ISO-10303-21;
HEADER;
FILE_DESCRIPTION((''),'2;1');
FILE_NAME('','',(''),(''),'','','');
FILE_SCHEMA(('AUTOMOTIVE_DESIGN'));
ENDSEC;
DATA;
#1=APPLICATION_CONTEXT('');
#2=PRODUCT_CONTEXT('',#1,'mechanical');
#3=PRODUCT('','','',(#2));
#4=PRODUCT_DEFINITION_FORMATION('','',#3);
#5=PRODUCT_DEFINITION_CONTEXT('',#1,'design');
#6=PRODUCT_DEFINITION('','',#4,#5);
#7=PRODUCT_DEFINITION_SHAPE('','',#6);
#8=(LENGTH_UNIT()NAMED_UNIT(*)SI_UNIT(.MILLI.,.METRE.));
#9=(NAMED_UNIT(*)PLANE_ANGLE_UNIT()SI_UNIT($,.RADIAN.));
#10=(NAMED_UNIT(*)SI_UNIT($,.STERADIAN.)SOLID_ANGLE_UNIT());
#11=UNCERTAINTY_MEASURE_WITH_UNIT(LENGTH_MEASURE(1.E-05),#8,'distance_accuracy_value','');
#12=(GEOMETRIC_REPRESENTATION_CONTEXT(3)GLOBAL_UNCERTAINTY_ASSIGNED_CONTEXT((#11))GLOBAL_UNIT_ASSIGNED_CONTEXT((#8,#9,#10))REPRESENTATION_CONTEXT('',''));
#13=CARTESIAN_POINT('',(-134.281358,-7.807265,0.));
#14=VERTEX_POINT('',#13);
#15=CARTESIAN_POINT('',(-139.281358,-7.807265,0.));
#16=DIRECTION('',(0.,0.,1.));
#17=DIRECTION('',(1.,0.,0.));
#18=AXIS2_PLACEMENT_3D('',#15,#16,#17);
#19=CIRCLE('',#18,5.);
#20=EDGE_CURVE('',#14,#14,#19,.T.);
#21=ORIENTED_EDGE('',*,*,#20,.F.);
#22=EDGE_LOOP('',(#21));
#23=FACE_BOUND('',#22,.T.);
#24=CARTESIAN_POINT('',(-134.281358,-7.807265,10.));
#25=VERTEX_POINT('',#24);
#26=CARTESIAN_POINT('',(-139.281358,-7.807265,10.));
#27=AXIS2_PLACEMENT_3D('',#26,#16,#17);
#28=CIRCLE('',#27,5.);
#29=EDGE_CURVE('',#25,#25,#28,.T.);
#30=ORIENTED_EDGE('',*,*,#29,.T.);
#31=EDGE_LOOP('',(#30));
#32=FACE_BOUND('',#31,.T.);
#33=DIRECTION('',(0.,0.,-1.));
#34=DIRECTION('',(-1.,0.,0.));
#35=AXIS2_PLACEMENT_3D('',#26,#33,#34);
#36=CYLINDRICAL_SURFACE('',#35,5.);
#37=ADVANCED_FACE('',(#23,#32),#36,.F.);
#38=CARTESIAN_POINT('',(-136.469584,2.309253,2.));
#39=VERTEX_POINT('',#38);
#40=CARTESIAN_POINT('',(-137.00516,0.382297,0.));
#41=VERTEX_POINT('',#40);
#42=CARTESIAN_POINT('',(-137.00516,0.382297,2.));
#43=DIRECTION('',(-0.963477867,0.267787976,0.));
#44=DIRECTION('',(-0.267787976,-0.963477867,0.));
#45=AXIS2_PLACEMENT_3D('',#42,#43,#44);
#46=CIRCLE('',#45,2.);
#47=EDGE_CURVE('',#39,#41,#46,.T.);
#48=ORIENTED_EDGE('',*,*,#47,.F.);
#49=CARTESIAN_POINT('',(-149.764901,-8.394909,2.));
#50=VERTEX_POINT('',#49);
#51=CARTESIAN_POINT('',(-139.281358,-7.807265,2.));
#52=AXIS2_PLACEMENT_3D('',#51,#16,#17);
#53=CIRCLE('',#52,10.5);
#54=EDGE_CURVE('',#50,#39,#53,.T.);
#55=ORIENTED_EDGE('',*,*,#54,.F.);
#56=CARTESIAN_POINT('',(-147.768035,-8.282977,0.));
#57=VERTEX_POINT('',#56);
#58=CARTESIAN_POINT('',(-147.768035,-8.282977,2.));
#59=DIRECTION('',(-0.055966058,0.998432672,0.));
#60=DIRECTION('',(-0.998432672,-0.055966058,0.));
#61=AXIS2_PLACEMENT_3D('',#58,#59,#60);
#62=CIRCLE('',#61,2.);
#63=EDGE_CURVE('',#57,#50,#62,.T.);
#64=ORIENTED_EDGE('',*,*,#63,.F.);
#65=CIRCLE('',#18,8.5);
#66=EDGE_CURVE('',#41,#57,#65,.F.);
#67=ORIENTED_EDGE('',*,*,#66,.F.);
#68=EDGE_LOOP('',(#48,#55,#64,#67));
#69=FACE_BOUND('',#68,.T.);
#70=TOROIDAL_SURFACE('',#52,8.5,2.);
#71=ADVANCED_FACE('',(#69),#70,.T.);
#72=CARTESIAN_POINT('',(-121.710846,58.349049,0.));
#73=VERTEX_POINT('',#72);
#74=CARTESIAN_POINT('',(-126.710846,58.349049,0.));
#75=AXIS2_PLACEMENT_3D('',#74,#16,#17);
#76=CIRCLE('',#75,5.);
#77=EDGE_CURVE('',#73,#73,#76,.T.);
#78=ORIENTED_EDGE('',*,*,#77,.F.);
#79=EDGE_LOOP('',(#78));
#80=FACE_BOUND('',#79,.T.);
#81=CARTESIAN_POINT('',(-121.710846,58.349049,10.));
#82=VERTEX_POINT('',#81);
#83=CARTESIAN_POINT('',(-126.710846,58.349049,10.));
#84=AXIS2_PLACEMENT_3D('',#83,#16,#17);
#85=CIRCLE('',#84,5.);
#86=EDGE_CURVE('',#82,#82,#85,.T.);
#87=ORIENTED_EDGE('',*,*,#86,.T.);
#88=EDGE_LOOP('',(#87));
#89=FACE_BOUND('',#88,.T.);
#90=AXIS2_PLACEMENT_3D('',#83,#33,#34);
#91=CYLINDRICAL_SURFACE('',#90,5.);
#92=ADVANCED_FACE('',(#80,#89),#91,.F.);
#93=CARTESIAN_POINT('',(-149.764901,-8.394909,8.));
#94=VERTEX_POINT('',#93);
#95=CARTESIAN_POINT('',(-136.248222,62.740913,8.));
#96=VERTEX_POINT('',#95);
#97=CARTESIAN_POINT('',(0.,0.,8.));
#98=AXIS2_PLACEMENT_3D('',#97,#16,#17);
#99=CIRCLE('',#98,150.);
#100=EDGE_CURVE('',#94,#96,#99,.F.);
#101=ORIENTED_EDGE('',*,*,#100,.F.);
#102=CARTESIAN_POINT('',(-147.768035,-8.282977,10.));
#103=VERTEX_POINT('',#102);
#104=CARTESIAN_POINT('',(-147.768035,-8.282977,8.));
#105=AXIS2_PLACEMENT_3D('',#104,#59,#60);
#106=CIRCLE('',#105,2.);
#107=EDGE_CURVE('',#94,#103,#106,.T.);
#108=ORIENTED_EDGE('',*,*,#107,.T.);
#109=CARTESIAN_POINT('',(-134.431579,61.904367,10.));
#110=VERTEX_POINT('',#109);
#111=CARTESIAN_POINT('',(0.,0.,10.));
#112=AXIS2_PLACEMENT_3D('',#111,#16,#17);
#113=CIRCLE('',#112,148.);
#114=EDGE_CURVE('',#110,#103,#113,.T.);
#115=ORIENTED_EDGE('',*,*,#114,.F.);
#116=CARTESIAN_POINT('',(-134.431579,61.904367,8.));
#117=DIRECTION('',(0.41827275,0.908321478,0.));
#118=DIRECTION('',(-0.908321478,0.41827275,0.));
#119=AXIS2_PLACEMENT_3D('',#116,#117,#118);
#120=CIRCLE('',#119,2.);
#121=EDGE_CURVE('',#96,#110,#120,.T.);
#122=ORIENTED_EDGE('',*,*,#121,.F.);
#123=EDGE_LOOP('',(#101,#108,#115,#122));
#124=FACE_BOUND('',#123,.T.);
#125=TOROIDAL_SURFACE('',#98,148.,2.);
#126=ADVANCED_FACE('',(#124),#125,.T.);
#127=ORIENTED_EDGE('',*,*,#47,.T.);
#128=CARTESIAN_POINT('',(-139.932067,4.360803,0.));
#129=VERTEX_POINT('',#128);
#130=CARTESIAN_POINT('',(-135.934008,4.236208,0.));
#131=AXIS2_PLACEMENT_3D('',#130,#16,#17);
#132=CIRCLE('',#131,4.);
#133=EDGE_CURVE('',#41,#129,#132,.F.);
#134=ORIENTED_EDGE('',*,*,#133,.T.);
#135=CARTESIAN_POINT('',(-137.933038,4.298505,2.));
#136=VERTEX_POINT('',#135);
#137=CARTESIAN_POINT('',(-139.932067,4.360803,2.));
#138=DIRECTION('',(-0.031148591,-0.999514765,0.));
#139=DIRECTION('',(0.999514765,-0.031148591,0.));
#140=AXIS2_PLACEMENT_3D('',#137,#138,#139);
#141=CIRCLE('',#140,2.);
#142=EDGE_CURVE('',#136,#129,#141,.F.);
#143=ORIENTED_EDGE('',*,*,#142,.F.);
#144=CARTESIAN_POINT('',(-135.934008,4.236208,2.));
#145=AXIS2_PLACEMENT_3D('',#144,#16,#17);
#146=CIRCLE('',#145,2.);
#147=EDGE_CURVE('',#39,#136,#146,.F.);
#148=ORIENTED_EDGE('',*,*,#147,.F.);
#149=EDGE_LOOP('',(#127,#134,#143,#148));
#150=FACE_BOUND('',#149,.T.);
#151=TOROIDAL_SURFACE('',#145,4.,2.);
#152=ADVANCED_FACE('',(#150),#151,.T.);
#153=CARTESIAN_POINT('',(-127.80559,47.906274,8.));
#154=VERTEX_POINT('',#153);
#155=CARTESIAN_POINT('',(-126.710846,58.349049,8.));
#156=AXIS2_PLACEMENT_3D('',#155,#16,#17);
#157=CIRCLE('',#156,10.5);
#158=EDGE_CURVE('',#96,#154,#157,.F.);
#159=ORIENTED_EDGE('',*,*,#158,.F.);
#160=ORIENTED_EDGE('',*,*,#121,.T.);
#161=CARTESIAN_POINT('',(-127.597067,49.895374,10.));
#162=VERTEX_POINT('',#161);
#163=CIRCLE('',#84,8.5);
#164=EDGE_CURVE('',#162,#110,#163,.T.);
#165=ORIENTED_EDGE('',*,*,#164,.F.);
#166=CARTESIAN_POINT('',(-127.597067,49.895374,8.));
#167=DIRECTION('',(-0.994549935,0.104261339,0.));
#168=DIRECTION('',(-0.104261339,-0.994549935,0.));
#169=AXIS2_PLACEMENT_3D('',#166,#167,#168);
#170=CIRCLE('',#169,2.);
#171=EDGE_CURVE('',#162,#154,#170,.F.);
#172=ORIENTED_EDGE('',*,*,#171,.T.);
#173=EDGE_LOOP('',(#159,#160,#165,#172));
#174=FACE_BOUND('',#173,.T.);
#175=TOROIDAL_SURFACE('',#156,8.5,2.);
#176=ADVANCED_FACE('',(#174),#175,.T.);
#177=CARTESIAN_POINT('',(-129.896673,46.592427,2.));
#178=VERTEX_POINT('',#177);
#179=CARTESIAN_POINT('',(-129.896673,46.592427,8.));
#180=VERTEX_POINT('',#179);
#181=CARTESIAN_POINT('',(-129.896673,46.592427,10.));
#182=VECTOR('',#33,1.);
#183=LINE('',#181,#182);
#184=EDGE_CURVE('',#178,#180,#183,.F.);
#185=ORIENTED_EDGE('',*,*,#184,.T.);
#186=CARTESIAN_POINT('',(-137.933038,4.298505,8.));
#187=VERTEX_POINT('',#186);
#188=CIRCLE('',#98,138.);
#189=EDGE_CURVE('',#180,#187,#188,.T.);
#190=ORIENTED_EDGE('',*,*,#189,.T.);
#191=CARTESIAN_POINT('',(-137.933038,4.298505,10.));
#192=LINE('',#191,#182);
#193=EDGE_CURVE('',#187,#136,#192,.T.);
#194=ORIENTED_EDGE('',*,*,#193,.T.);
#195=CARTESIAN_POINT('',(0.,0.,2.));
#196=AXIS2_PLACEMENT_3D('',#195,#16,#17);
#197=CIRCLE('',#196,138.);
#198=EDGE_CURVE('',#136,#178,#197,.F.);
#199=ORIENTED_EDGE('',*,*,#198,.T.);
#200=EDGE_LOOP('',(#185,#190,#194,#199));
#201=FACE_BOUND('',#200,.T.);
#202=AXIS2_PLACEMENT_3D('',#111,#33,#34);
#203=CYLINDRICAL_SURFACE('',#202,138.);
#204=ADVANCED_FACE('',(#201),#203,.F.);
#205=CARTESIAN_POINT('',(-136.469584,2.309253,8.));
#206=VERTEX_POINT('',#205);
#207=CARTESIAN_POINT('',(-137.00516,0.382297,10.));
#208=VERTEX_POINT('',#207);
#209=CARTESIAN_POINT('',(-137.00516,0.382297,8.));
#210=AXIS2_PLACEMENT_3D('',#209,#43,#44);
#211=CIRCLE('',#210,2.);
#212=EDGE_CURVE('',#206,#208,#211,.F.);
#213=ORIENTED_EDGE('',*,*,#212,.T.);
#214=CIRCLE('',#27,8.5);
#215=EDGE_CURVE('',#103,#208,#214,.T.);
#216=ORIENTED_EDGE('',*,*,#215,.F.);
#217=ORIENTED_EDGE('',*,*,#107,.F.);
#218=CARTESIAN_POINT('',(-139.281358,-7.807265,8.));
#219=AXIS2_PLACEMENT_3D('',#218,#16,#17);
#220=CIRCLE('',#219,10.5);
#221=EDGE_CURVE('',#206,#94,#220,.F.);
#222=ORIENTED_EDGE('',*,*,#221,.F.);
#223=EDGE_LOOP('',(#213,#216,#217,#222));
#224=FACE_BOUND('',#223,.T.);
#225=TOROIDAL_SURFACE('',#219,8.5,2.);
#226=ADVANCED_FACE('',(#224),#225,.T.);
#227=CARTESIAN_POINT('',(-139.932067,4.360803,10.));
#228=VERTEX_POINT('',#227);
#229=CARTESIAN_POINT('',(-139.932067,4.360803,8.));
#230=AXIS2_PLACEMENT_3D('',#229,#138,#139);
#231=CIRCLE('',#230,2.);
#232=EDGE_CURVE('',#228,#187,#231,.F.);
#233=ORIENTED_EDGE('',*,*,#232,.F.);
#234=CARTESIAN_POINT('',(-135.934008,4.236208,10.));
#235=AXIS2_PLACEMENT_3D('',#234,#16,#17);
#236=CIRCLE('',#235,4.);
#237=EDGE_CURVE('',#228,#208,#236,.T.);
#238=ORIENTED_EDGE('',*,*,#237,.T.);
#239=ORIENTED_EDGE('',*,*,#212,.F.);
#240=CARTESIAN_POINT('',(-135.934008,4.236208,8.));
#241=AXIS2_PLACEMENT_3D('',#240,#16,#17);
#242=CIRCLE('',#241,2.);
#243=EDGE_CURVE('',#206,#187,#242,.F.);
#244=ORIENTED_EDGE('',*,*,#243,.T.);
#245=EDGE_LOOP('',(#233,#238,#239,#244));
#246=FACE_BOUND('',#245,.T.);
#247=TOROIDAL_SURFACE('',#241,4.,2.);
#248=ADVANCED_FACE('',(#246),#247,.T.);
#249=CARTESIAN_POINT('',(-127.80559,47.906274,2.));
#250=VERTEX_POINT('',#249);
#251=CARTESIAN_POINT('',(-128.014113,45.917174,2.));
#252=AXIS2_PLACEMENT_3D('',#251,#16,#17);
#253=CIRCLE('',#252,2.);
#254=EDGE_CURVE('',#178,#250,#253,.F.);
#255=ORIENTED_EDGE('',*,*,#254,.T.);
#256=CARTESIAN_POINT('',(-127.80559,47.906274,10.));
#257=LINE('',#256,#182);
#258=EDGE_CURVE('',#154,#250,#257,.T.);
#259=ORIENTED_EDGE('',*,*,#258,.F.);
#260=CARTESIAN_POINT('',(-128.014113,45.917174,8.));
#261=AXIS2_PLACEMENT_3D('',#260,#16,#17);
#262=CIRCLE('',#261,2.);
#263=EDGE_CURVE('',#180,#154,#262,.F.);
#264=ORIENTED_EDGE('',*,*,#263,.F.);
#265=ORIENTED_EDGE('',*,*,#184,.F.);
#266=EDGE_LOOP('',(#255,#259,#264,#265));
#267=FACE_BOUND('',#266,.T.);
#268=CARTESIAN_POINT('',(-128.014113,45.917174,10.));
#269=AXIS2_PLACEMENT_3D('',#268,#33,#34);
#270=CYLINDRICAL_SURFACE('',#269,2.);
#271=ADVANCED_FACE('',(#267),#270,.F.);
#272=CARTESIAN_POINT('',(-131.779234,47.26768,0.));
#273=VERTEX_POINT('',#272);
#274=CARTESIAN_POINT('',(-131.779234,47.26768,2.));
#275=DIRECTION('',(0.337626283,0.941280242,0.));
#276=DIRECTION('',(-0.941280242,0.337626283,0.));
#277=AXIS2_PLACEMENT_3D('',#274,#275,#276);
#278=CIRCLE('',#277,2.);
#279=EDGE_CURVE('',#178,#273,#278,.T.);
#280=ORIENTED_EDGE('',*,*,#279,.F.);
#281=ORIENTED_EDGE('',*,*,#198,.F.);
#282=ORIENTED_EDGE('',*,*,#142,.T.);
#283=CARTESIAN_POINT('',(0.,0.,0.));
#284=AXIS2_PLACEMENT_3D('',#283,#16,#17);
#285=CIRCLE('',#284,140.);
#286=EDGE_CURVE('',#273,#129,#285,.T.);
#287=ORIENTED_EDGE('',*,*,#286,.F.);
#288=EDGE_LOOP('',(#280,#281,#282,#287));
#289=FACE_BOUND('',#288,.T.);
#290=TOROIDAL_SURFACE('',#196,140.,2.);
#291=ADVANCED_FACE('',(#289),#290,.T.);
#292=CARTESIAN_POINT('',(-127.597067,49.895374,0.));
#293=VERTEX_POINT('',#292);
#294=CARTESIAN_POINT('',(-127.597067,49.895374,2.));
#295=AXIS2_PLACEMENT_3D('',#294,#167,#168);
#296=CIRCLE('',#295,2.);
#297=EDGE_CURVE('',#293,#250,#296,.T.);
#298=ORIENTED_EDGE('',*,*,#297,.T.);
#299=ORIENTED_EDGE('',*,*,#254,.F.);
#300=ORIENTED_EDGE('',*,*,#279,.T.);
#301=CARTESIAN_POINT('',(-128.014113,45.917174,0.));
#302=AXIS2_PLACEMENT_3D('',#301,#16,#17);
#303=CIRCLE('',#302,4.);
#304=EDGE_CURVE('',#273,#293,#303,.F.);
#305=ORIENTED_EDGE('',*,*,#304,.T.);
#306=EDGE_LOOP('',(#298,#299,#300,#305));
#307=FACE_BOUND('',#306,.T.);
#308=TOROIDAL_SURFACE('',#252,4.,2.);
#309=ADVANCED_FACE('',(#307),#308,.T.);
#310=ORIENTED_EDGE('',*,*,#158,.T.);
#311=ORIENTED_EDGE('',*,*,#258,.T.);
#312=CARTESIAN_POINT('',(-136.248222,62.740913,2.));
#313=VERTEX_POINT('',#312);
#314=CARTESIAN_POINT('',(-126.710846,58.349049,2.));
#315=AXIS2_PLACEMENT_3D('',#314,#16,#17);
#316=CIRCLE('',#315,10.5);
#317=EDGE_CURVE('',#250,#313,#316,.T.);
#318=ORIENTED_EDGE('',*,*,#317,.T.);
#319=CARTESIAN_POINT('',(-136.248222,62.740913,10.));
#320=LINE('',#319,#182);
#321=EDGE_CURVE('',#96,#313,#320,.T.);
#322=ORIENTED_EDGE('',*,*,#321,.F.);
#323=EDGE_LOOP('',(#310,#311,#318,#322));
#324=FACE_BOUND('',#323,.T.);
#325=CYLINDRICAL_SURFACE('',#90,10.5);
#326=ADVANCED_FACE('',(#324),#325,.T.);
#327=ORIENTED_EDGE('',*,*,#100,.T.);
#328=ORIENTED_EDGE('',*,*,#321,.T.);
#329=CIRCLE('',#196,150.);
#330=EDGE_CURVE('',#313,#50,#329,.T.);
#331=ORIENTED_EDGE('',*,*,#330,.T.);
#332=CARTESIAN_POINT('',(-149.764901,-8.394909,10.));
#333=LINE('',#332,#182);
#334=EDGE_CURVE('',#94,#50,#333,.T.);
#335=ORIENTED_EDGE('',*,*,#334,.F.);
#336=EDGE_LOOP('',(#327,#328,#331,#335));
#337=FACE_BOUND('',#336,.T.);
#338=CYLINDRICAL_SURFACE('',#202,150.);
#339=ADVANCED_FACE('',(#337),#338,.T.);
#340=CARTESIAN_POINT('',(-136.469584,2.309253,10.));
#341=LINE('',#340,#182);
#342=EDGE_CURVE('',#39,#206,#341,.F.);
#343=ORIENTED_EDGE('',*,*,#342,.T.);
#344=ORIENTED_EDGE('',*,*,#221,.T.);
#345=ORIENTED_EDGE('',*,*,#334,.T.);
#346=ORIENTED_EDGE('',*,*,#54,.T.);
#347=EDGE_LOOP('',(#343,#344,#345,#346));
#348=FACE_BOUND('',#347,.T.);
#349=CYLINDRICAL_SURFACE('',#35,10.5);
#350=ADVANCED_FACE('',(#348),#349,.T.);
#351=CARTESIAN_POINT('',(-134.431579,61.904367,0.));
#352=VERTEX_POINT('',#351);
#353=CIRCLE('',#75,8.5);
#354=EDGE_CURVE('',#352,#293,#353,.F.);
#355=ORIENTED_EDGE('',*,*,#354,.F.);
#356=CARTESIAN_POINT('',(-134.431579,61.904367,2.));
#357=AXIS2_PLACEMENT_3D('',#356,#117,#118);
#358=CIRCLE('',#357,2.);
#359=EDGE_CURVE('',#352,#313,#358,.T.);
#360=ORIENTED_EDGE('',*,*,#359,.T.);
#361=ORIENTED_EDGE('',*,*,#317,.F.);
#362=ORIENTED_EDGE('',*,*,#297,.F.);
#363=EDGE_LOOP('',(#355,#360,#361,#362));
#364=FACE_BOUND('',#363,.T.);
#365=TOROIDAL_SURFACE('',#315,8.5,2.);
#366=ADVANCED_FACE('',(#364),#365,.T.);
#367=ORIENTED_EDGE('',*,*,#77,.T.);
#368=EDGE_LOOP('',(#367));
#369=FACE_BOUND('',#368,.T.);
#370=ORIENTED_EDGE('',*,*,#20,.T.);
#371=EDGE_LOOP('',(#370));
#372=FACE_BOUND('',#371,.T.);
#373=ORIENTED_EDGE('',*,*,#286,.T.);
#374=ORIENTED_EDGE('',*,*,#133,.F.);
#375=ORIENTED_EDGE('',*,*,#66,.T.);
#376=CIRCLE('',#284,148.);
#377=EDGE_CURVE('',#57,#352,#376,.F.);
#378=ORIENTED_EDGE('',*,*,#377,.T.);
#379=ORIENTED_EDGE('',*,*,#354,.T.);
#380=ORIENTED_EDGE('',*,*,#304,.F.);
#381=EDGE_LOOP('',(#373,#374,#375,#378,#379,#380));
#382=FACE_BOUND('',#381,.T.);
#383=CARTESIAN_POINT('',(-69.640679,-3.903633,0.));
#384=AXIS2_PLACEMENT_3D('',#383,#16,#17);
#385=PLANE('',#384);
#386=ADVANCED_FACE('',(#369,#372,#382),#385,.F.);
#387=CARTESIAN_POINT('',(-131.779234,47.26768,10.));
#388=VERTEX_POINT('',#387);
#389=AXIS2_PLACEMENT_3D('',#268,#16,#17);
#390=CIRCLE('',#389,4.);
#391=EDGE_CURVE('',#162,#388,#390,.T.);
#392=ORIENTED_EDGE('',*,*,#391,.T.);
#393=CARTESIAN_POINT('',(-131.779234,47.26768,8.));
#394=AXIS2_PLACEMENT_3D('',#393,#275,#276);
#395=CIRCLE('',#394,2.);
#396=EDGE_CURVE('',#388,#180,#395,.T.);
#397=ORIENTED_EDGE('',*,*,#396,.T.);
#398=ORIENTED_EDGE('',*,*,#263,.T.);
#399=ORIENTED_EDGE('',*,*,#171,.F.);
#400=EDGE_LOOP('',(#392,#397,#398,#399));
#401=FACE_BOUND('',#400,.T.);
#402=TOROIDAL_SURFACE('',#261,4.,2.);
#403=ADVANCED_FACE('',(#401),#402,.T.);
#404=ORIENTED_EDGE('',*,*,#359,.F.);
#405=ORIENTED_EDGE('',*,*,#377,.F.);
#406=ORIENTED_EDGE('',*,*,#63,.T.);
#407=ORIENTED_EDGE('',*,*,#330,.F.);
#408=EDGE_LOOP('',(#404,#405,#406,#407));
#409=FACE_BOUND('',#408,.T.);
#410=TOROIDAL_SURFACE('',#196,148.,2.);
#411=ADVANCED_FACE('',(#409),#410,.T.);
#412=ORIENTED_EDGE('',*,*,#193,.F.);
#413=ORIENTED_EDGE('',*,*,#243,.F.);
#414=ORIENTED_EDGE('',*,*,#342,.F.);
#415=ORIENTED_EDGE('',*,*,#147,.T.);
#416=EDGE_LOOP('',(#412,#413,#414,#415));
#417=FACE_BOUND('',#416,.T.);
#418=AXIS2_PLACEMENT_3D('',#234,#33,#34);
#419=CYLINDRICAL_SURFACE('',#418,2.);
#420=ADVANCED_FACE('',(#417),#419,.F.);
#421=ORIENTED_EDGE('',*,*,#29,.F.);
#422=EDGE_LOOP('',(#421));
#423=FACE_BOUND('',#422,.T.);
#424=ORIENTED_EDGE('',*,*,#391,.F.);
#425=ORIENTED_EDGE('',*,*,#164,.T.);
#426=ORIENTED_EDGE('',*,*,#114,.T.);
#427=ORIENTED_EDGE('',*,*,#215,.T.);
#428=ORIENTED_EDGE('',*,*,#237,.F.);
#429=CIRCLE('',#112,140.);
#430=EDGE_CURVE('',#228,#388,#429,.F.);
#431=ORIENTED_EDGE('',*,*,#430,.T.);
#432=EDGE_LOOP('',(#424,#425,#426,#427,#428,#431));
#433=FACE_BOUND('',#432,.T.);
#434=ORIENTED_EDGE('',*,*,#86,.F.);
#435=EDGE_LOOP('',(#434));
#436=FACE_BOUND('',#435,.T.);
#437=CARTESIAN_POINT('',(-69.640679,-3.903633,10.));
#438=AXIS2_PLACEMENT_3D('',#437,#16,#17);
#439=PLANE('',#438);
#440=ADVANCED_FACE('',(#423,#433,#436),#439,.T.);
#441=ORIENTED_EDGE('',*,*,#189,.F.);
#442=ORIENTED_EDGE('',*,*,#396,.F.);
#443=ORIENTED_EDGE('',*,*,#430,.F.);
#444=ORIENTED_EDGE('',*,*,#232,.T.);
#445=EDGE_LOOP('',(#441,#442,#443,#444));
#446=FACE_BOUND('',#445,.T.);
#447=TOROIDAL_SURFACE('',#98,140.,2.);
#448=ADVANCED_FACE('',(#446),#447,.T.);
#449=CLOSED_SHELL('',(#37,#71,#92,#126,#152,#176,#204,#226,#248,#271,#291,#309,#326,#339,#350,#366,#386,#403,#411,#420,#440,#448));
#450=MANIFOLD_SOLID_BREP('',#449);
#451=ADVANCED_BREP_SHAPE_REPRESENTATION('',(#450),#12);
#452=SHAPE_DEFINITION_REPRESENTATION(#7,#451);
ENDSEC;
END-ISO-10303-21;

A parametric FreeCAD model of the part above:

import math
import FreeCAD as App
import Part
import Sketcher

V = App.Vector
Q = App.Units.Quantity


def edges_at(feature, points):
    """Names of the edges that pass closest to the given points."""
    edges = feature.Shape.Edges
    near = lambda p: min(range(len(edges)), key=lambda i: edges[i].distToShape(Part.Vertex(*p))[0])
    return sorted({f"Edge{near(p) + 1}" for p in points})

doc = App.newDocument("Part")
params = doc.addObject("Spreadsheet::Sheet", "Params")
for row, (alias, value) in enumerate([
    ("sketch1_diameter", "10 mm"),
    ("sketch1_radius", "150 mm"),
    ("sketch1_radius2", "138 mm"),
    ("sketch1_radius3", "10.5 mm"),
    ("pad1_length", "10 mm"),
    ("fillet_radius", "2 mm"),
], start=1):
    params.set(f"A{row}", alias)
    params.set(f"B{row}", "=" + value)
    params.setAlias(f"B{row}", alias)

body = doc.addObject("PartDesign::Body", "Body")

# Sketch on XY plane
sketch1 = body.newObject("Sketcher::SketchObject", "Sketch")
sketch1.AttachmentSupport = (doc.getObject("XY_Plane"), [""])
sketch1.MapMode = "FlatFace"
sketch1.addGeometry([
    Part.ArcOfCircle(Part.Circle(V(0, 0, 0), V(0, 0, 1), 150), math.radians(155), math.radians(183)),  # 0
    Part.ArcOfCircle(Part.Circle(V(-139, -8, 0), V(0, 0, 1), 10), math.radians(-177), math.radians(83)),  # 1
    Part.ArcOfCircle(Part.Circle(V(0, 0, 0), V(0, 0, 1), 138), math.radians(159.57), math.radians(178.92)),  # 2
    Part.ArcOfCircle(Part.Circle(V(-127, 58, 0), V(0, 0, 1), 10), math.radians(-104), math.radians(155)),  # 3
    Part.Circle(V(-139, -8, 0), V(0, 0, 1), 5),  # 4
    Part.Circle(V(-127, 58, 0), V(0, 0, 1), 5),  # 5
], False)
sketch1.addConstraint([
    Sketcher.Constraint("Tangent", 0, 2, 1, 1),
    Sketcher.Constraint("Coincident", 1, 2, 2, 2),
    Sketcher.Constraint("Coincident", 2, 1, 3, 1),
    Sketcher.Constraint("Tangent", 3, 2, 0, 1),
    Sketcher.Constraint("Coincident", 0, 3, -1, 1),
    Sketcher.Constraint("Coincident", 2, 3, -1, 1),
    Sketcher.Constraint("Coincident", 4, 3, 1, 3),
    Sketcher.Constraint("Coincident", 5, 3, 3, 3),
    Sketcher.Constraint("Equal", 1, 3),
    Sketcher.Constraint("Equal", 4, 5),
    Sketcher.Constraint("Diameter", 4, Q("10 mm")),
    Sketcher.Constraint("Radius", 0, Q("150 mm")),
    Sketcher.Constraint("Radius", 2, Q("138 mm")),
    Sketcher.Constraint("Radius", 1, Q("10.5 mm")),
    Sketcher.Constraint("DistanceX", 0, 2, -1, 1, Q("149.764901 mm")),
    Sketcher.Constraint("DistanceY", -1, 1, 3, 3, Q("58.349049 mm")),
])
sketch1.setExpression("Constraints[10]", "Params.sketch1_diameter")
sketch1.setExpression("Constraints[11]", "Params.sketch1_radius")
sketch1.setExpression("Constraints[12]", "Params.sketch1_radius2")
sketch1.setExpression("Constraints[13]", "Params.sketch1_radius3")
pad1 = body.newObject("PartDesign::Pad", "Pad")
pad1.Profile = sketch1
pad1.setExpression("Length", "Params.pad1_length")
doc.recompute()

fillet = body.newObject("PartDesign::Fillet", "Fillet")
fillet.Base = (pad1, edges_at(pad1, [
    (-147.363, 28.001, 10),
    (-132.116, -15.483, 10),
    (-135.574, 25.761, 10),
    (-132.116, -15.483, 0),
    (-147.363, 28.001, 0),
    (-117.23, 62.861, 0),
    (-135.574, 25.761, 0),
    (-117.23, 62.861, 10),
    (-137.975, 2.611, 5),
    (-129.317, 48.178, 5),
]))
fillet.setExpression("Radius", "Params.fillet_radius")

doc.recompute()
